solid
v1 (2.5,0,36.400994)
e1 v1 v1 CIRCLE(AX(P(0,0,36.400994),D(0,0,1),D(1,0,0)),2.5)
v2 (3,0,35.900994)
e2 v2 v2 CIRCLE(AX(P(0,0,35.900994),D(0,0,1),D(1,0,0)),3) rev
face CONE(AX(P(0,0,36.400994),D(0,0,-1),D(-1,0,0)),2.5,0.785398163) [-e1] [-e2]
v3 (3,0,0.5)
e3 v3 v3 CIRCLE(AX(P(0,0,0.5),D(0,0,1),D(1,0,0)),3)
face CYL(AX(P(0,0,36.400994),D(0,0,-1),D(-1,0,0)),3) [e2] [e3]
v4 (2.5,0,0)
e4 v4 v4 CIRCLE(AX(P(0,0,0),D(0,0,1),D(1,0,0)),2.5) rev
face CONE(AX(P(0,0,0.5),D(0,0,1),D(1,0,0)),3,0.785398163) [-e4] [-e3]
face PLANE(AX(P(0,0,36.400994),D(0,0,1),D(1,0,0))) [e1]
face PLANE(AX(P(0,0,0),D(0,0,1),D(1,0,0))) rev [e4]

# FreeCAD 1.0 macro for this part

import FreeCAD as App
import Part
import Sketcher


def edges_at(feature, points):
    """Names of the edges that pass closest to the given points."""
    edges = feature.Shape.Edges
    near = lambda p: min(range(len(edges)), key=lambda i: edges[i].distToShape(Part.Vertex(*p))[0])
    return sorted({f"Edge{near(p) + 1}" for p in points})

doc = App.newDocument("Part")
params = doc.addObject("Spreadsheet::Sheet", "Params")
for row, (alias, value) in enumerate([
    ("sketch1_diameter", "6 mm"),
    ("pad1_length", "36.400994 mm"),
    ("chamfer_size", "0.5 mm"),
], start=1):
    params.set(f"A{row}", alias)
    params.set(f"B{row}", "=" + value)
    params.setAlias(f"B{row}", alias)

body = doc.addObject("PartDesign::Body", "Body")

sketch1 = body.newObject("Sketcher::SketchObject", "Sketch")
sketch1.AttachmentSupport = (doc.getObject("XY_Plane"), [""])
sketch1.MapMode = "FlatFace"
sketch1.addGeometry(Part.Circle(App.Vector(0, 0, 0), App.Vector(0, 0, 1), 3), False)
sketch1.addConstraint([
    Sketcher.Constraint("Coincident", 0, 3, -1, 1),
    Sketcher.Constraint("Diameter", 0, 6.0),
])
sketch1.setExpression("Constraints[1]", "Params.sketch1_diameter")
pad1 = body.newObject("PartDesign::Pad", "Pad")
pad1.Profile = sketch1
pad1.setExpression("Length", "Params.pad1_length")
doc.recompute()

chamfer = body.newObject("PartDesign::Chamfer", "Chamfer")
chamfer.Base = (pad1, edges_at(pad1, [(-3, 0, 0), (-3, 0, 36.401)]))
chamfer.setExpression("Size", "Params.chamfer_size")

doc.recompute()
